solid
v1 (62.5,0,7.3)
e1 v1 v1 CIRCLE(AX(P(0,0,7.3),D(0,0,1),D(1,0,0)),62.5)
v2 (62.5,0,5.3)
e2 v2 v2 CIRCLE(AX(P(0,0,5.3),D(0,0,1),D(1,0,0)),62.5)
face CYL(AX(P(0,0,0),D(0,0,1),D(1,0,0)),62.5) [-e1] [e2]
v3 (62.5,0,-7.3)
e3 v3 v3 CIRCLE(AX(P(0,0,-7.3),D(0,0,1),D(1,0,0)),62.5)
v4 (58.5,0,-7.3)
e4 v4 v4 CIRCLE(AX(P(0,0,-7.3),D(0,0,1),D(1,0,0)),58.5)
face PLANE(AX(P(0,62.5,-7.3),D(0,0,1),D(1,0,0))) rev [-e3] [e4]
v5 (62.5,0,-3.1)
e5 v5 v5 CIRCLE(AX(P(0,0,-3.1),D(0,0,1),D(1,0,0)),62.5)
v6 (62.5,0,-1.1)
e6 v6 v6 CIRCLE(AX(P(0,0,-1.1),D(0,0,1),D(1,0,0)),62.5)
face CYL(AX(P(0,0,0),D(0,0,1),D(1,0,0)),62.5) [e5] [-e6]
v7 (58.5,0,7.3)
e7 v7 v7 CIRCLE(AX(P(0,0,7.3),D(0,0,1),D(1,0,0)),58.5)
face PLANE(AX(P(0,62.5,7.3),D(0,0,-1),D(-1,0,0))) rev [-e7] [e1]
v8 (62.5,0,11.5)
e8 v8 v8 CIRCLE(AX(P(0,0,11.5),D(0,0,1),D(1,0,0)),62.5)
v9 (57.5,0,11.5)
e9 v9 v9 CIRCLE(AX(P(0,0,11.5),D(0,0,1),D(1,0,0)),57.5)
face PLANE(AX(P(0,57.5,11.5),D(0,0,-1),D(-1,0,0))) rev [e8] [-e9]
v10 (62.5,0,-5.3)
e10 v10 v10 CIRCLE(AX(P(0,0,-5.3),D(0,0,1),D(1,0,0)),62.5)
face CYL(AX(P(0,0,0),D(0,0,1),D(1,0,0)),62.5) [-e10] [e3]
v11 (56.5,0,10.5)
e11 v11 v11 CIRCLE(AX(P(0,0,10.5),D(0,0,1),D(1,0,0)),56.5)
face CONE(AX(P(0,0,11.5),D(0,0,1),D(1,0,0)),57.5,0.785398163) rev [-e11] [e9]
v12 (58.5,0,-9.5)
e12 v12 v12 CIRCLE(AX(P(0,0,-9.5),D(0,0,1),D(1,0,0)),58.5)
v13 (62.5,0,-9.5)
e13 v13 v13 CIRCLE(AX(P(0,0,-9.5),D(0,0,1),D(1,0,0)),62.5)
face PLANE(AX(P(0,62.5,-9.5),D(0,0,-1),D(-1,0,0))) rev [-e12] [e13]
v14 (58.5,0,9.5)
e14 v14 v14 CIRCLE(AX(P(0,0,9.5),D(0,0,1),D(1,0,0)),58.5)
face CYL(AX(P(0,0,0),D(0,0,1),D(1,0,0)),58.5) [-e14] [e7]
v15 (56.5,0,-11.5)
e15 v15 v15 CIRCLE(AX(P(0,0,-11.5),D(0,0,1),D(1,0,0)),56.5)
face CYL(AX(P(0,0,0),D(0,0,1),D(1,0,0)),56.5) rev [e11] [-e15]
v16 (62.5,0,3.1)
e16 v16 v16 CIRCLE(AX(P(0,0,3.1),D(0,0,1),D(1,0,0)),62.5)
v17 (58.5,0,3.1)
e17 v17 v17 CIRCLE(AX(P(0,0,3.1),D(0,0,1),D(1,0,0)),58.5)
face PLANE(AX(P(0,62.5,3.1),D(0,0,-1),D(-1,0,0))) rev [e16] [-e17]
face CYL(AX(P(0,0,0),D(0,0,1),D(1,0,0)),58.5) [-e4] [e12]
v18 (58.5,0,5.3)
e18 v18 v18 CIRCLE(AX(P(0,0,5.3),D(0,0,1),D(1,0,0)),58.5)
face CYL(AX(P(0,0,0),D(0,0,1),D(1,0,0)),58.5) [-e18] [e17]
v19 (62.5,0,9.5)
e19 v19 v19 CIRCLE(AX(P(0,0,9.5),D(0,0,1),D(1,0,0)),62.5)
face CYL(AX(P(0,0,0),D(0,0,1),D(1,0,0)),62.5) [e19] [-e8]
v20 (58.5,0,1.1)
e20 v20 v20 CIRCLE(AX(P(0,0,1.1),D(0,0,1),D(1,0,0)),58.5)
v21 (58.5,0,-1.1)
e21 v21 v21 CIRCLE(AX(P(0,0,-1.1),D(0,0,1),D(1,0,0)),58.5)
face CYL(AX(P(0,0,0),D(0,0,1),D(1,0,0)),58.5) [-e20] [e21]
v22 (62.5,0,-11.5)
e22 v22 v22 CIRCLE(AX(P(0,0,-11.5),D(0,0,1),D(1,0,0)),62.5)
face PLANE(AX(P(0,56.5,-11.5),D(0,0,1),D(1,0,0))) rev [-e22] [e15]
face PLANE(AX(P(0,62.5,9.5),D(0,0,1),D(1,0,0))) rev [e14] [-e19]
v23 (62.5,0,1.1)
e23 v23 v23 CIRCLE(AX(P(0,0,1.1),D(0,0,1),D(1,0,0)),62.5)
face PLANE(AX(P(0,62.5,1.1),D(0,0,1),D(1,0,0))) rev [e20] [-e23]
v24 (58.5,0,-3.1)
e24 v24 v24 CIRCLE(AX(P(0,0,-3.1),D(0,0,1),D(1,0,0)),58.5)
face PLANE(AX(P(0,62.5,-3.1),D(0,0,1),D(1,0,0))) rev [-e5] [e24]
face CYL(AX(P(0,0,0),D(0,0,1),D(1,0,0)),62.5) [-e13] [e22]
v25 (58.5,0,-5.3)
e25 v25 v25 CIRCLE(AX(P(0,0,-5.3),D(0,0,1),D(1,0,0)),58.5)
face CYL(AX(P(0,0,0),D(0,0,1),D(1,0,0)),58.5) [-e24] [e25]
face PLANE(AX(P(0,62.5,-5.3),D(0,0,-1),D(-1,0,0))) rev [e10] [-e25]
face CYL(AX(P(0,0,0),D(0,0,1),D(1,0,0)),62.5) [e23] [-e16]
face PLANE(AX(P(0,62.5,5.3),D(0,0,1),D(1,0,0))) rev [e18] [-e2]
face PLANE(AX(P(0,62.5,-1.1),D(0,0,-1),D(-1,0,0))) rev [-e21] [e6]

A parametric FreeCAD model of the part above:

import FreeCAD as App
import Part
import Sketcher
from FreeCAD import Vector
Q = App.Units.Quantity


def add_polygon(sketch, points):
    """Adds a closed chain of lines whose ends are joined by coincident constraints."""
    first, n = sketch.GeometryCount, len(points)
    for a, b in zip(points, points[1:] + points[:1]):
        sketch.addGeometry(Part.LineSegment(App.Vector(*a, 0), App.Vector(*b, 0)), False)
    for i in range(n):
        sketch.addConstraint(Sketcher.Constraint("Coincident", first + i, 2, first + (i + 1) % n, 1))

doc = App.newDocument("Part")
body = doc.addObject("PartDesign::Body", "Body")

sketch1 = body.newObject("Sketcher::SketchObject", "Sketch")
sketch1.AttachmentSupport = (doc.getObject("YZ_Plane"), [""])
sketch1.MapMode = "FlatFace"
add_polygon(sketch1, [(56.5, 10.5), (56.5, -11.5), (62.5, -11.5), (62.5, -9.5), (58.5, -9.5), (58.5, -7.3), (62.5, -7.3), (62.5, -5.3), (58.5, -5.3), (58.5, -3.1), (62.5, -3.1), (62.5, -1.1), (58.5, -1.1), (58.5, 1.1), (62.5, 1.1), (62.5, 3.1), (58.5, 3.1), (58.5, 5.3), (62.5, 5.3), (62.5, 7.3), (58.5, 7.3), (58.5, 9.5), (62.5, 9.5), (62.5, 11.5), (57.5, 11.5)])
sketch1.addConstraint(Sketcher.Constraint("Vertical", 0))
sketch1.addConstraint(Sketcher.Constraint("Horizontal", 1))
sketch1.addConstraint(Sketcher.Constraint("Vertical", 2))
sketch1.addConstraint(Sketcher.Constraint("Horizontal", 3))
sketch1.addConstraint(Sketcher.Constraint("Vertical", 4))
sketch1.addConstraint(Sketcher.Constraint("Horizontal", 5))
sketch1.addConstraint(Sketcher.Constraint("Vertical", 6))
sketch1.addConstraint(Sketcher.Constraint("Horizontal", 7))
sketch1.addConstraint(Sketcher.Constraint("Vertical", 8))
sketch1.addConstraint(Sketcher.Constraint("Horizontal", 9))
sketch1.addConstraint(Sketcher.Constraint("Vertical", 10))
sketch1.addConstraint(Sketcher.Constraint("Horizontal", 11))
sketch1.addConstraint(Sketcher.Constraint("Vertical", 12))
sketch1.addConstraint(Sketcher.Constraint("Horizontal", 13))
sketch1.addConstraint(Sketcher.Constraint("Vertical", 14))
sketch1.addConstraint(Sketcher.Constraint("Horizontal", 15))
sketch1.addConstraint(Sketcher.Constraint("Vertical", 16))
sketch1.addConstraint(Sketcher.Constraint("Horizontal", 17))
sketch1.addConstraint(Sketcher.Constraint("Vertical", 18))
sketch1.addConstraint(Sketcher.Constraint("Horizontal", 19))
sketch1.addConstraint(Sketcher.Constraint("Vertical", 20))
sketch1.addConstraint(Sketcher.Constraint("Horizontal", 21))
sketch1.addConstraint(Sketcher.Constraint("Vertical", 22))
sketch1.addConstraint(Sketcher.Constraint("Horizontal", 23))
sketch1.addConstraint(Sketcher.Constraint("Symmetric", 10, 2, 13, 2, -1))
sketch1.addConstraint(Sketcher.Constraint("Symmetric", 8, 2, 15, 2, -1))
sketch1.addConstraint(Sketcher.Constraint("Symmetric", 6, 2, 17, 2, -1))
sketch1.addConstraint(Sketcher.Constraint("Symmetric", 4, 2, 19, 2, -1))
sketch1.addConstraint(Sketcher.Constraint("Symmetric", 2, 2, 21, 2, -1))
sketch1.addConstraint(Sketcher.Constraint("Vertical", 2, 2, 5, 2))
sketch1.addConstraint(Sketcher.Constraint("Vertical", 4, 2, 7, 2))
sketch1.addConstraint(Sketcher.Constraint("Vertical", 6, 2, 9, 2))
sketch1.addConstraint(Sketcher.Constraint("Vertical", 8, 2, 11, 2))
sketch1.addConstraint(Sketcher.Constraint("Equal", 2, 6))
sketch1.addConstraint(Sketcher.Constraint("Equal", 4, 8))
sketch1.addConstraint(Sketcher.Constraint("Equal", 6, 10))
sketch1.addConstraint(Sketcher.Constraint("Equal", 8, 12))
sketch1.addConstraint(Sketcher.Constraint("Equal", 18, 22))
sketch1.addConstraint(Sketcher.Constraint("DistanceX", 1, 1, 1, 2, Q("6 mm")))
sketch1.addConstraint(Sketcher.Constraint("DistanceX", 3, 2, 3, 1, Q("4 mm")))
sketch1.addConstraint(Sketcher.Constraint("DistanceX", 23, 2, 23, 1, Q("5 mm")))
sketch1.addConstraint(Sketcher.Constraint("DistanceY", 0, 2, 0, 1, Q("22 mm")))
sketch1.addConstraint(Sketcher.Constraint("DistanceY", 2, 1, 2, 2, Q("2 mm")))
sketch1.addConstraint(Sketcher.Constraint("Angle", 24, Q("-135 deg")))
sketch1.addConstraint(Sketcher.Constraint("DistanceX", -1, 1, 0, 2, Q("56.5 mm")))
revolution = body.newObject("PartDesign::Revolution", "Revolution")
revolution.Profile = sketch1
revolution.ReferenceAxis = (sketch1, ["V_Axis"])
revolution.Angle = 360

doc.recompute()
